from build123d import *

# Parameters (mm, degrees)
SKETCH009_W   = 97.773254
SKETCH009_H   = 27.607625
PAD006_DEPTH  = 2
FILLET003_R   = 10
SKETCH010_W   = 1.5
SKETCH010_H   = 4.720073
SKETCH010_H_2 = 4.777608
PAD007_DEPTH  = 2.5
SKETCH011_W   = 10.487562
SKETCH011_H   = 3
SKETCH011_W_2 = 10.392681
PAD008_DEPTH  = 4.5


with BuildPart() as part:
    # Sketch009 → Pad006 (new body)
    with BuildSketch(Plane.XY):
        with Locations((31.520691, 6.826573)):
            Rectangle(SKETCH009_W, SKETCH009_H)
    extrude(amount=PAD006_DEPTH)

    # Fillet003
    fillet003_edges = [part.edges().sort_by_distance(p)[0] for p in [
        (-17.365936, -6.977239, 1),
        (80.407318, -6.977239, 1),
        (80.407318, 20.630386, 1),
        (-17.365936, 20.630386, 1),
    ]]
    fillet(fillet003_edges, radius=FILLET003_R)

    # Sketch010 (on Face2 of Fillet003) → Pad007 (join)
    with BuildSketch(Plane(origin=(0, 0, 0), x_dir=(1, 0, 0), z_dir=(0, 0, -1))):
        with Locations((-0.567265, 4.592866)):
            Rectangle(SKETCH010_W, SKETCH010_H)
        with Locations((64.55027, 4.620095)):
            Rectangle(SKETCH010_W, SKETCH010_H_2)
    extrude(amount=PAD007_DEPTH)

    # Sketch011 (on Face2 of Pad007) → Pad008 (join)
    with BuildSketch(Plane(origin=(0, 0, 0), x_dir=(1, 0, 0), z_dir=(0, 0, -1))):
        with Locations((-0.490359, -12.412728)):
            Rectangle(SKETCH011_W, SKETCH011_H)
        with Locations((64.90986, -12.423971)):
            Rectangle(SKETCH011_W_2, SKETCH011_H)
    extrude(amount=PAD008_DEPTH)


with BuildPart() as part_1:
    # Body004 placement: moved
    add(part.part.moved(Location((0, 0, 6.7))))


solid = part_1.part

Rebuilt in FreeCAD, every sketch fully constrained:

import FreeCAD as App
import Part
import Sketcher


def edges_at(feature, points):
    """Names of the edges that pass closest to the given points."""
    edges = feature.Shape.Edges
    near = lambda p: min(range(len(edges)), key=lambda i: edges[i].distToShape(Part.Vertex(*p))[0])
    return sorted({f"Edge{near(p) + 1}" for p in points})


def add_polygon(sketch, points):
    """Adds a closed chain of lines whose ends are joined by coincident constraints."""
    first, n = sketch.GeometryCount, len(points)
    for a, b in zip(points, points[1:] + points[:1]):
        sketch.addGeometry(Part.LineSegment(App.Vector(*a, 0), App.Vector(*b, 0)), False)
    for i in range(n):
        sketch.addConstraint(Sketcher.Constraint("Coincident", first + i, 2, first + (i + 1) % n, 1))

doc = App.newDocument("Part")
body = doc.addObject("PartDesign::Body", "Body")

# Sketch on XY plane
sketch1 = body.newObject("Sketcher::SketchObject", "Sketch")
sketch1.AttachmentSupport = (doc.getObject("XY_Plane"), [""])
sketch1.MapMode = "FlatFace"
add_polygon(sketch1, [(-17, 21), (-17, -7), (80, -7), (80, 21)])  # lines 0-3
sketch1.addConstraint([
    Sketcher.Constraint("Vertical", 0),
    Sketcher.Constraint("Horizontal", 1),
    Sketcher.Constraint("Vertical", 2),
    Sketcher.Constraint("Horizontal", 3),
    Sketcher.Constraint("DistanceX", 1, 1, 1, 2, 97.773254),
    Sketcher.Constraint("DistanceY", 0, 2, 0, 1, 27.607625),
    Sketcher.Constraint("DistanceY", 0, 2, -1, 1, 6.977239),
    Sketcher.Constraint("DistanceX", -1, 1, 1, 2, 80.407318),
])
pad1 = body.newObject("PartDesign::Pad", "Pad")
pad1.Profile = sketch1
pad1.Length = 2
doc.recompute()

fillet = body.newObject("PartDesign::Fillet", "Fillet")
fillet.Base = (pad1, edges_at(pad1, [
    (-17.366, -6.977, 1),
    (80.407, -6.977, 1),
    (80.407, 20.63, 1),
    (-17.366, 20.63, 1),
]))
fillet.Radius = 10

# Sketch on XY plane
sketch2 = body.newObject("Sketcher::SketchObject", "Sketch001")
sketch2.AttachmentSupport = (doc.getObject("XY_Plane"), [""])
sketch2.MapMode = "FlatFace"
add_polygon(sketch2, [(-1.3, -7), (-1.3, -2.2), (0.2, -2.2), (0.2, -7)])  # lines 0-3
add_polygon(sketch2, [(63.8, -7), (63.8, -2.2), (65.3, -2.2), (65.3, -7)])  # lines 4-7
sketch2.addConstraint([
    Sketcher.Constraint("Vertical", 0),
    Sketcher.Constraint("Horizontal", 1),
    Sketcher.Constraint("Vertical", 2),
    Sketcher.Constraint("Horizontal", 3),
    Sketcher.Constraint("Vertical", 4),
    Sketcher.Constraint("Horizontal", 5),
    Sketcher.Constraint("Vertical", 6),
    Sketcher.Constraint("Horizontal", 7),
    Sketcher.Constraint("Equal", 3, 5),
    Sketcher.Constraint("DistanceX", 1, 1, 1, 2, 1.5),
    Sketcher.Constraint("DistanceY", 4, 1, 4, 2, 4.777608),
    Sketcher.Constraint("DistanceY", 6, 2, -1, 1, 7.008899),
    Sketcher.Constraint("DistanceY", 0, 1, 0, 2, 4.720073),
    Sketcher.Constraint("DistanceY", 0, 2, -1, 1, 2.232829),
    Sketcher.Constraint("DistanceX", -1, 1, 4, 2, 63.80027),
    Sketcher.Constraint("DistanceX", 0, 2, -1, 1, 1.317265),
])
pad2 = body.newObject("PartDesign::Pad", "Pad001")
pad2.Profile = sketch2
pad2.Length = 2.5
pad2.Reversed = True

# Sketch on XY plane
sketch3 = body.newObject("Sketcher::SketchObject", "Sketch002")
sketch3.AttachmentSupport = (doc.getObject("XY_Plane"), [""])
sketch3.MapMode = "FlatFace"
add_polygon(sketch3, [(-5.7, 10.9), (-5.7, 13.9), (4.8, 13.9), (4.8, 10.9)])  # lines 0-3
add_polygon(sketch3, [(59.7, 10.9), (59.7, 13.9), (70.1, 13.9), (70.1, 10.9)])  # lines 4-7
sketch3.addConstraint([
    Sketcher.Constraint("Vertical", 0),
    Sketcher.Constraint("Horizontal", 1),
    Sketcher.Constraint("Vertical", 2),
    Sketcher.Constraint("Horizontal", 3),
    Sketcher.Constraint("Vertical", 4),
    Sketcher.Constraint("Horizontal", 5),
    Sketcher.Constraint("Vertical", 6),
    Sketcher.Constraint("Horizontal", 7),
    Sketcher.Constraint("Equal", 2, 4),
    Sketcher.Constraint("DistanceY", 0, 1, 0, 2, 3.0),
    Sketcher.Constraint("DistanceX", 5, 1, 5, 2, 10.392681),
    Sketcher.Constraint("DistanceX", -1, 1, 5, 2, 70.1062),
    Sketcher.Constraint("DistanceX", 1, 1, 1, 2, 10.487562),
    Sketcher.Constraint("DistanceX", 0, 2, -1, 1, 5.73414),
    Sketcher.Constraint("DistanceY", -1, 1, 4, 2, 13.923971),
    Sketcher.Constraint("DistanceY", -1, 1, 0, 2, 13.912728),
])
pad3 = body.newObject("PartDesign::Pad", "Pad002")
pad3.Profile = sketch3
pad3.Length = 4.5
pad3.Reversed = True
body2 = doc.addObject("PartDesign::Body", "Body001")
doc.recompute()

body.Placement = App.Placement(App.Vector(0, 0, 6.7), App.Rotation(App.Vector(0, 0, 1), 0))
boolean = body2.newObject("PartDesign::Boolean", "Boolean")
boolean.Type = "Fuse"
boolean.addObjects([body])

doc.recompute()
